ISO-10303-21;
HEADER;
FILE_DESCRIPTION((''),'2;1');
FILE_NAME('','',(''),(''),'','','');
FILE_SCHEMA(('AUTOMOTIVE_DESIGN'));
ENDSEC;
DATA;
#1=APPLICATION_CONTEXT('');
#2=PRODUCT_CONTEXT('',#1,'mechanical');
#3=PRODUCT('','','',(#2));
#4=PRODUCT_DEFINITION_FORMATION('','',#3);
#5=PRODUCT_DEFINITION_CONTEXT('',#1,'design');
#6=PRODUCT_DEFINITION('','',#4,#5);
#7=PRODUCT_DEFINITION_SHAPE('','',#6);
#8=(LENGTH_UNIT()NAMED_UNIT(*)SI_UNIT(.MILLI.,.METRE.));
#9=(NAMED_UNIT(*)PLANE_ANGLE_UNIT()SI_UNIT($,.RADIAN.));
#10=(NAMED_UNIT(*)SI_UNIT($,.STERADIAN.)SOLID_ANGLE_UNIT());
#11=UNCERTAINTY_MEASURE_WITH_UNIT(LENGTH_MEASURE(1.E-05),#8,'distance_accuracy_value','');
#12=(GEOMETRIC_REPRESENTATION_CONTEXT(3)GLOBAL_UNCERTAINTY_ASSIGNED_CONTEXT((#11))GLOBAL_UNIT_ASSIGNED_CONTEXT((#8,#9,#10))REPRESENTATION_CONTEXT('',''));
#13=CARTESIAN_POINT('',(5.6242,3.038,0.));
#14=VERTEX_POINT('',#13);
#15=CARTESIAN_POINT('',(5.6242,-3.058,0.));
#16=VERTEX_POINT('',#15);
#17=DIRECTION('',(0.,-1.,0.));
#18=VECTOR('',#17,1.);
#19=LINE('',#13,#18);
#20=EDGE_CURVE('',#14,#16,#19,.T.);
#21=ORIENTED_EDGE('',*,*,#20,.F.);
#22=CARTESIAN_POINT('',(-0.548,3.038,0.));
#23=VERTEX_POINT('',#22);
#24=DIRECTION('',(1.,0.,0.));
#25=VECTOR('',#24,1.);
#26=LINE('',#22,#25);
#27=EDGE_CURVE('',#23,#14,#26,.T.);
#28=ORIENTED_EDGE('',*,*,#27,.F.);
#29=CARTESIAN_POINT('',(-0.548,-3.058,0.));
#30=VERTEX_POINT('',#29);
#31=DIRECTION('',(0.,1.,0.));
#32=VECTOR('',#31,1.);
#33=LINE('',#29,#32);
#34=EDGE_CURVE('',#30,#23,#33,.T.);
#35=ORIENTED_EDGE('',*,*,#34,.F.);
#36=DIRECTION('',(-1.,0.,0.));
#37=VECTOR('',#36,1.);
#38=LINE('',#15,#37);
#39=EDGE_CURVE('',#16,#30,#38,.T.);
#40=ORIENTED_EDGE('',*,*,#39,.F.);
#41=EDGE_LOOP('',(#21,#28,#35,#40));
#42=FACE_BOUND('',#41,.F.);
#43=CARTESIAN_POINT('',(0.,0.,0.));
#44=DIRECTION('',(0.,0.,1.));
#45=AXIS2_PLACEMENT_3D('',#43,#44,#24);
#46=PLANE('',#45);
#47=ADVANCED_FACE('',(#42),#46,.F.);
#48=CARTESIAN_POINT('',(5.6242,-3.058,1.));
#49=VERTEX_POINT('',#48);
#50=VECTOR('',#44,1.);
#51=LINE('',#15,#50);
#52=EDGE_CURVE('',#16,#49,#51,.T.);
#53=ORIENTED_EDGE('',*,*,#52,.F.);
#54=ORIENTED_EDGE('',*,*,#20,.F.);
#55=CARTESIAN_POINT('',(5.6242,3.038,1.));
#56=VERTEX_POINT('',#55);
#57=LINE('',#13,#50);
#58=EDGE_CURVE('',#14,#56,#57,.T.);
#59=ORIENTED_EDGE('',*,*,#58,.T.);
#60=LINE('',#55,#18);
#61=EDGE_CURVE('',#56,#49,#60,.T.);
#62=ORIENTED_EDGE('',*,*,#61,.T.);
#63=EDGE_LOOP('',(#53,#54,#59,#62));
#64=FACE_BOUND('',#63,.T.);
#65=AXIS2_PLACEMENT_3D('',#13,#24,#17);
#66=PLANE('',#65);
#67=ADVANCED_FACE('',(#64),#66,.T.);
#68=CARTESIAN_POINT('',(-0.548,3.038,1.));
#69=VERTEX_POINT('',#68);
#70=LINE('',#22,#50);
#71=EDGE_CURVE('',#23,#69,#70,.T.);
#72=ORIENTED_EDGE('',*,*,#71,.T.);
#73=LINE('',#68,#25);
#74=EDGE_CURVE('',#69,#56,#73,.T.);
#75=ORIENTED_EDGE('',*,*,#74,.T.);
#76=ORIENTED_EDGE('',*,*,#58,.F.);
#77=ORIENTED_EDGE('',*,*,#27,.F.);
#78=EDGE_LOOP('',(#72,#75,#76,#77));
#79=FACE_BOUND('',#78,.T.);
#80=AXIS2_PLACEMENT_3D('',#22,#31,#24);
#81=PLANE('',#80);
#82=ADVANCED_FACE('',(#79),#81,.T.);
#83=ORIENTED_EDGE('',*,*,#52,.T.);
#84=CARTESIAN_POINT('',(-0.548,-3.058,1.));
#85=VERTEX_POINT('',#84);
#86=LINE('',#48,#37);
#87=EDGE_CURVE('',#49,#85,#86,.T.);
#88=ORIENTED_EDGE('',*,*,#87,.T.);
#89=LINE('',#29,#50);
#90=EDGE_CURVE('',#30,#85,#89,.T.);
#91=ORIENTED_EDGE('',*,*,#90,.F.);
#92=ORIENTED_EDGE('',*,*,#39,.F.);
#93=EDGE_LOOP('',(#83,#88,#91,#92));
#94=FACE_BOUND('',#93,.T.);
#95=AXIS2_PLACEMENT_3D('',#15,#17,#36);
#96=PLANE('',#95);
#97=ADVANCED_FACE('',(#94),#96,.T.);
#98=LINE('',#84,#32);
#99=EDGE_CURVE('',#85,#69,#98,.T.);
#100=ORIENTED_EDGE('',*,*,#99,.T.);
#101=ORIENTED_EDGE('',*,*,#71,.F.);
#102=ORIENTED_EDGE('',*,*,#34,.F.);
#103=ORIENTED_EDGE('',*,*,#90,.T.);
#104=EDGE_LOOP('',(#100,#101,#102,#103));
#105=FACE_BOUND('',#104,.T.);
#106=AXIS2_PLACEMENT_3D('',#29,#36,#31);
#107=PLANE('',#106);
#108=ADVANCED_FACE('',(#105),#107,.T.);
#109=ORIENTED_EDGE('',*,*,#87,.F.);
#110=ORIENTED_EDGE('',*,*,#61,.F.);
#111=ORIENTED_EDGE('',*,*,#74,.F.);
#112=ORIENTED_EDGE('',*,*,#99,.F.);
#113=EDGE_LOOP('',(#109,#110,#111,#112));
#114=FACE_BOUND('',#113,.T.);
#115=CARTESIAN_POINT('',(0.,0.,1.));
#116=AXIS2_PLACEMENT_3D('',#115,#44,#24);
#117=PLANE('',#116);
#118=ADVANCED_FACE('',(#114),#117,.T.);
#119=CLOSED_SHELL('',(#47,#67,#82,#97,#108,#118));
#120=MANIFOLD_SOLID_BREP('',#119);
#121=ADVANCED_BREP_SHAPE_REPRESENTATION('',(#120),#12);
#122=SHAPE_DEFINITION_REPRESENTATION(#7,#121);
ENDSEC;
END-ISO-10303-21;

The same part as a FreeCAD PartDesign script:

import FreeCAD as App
import Part
import Sketcher
from FreeCAD import Vector
Q = App.Units.Quantity


def add_polygon(sketch, points):
    """Adds a closed chain of lines whose ends are joined by coincident constraints."""
    first, n = sketch.GeometryCount, len(points)
    for a, b in zip(points, points[1:] + points[:1]):
        sketch.addGeometry(Part.LineSegment(App.Vector(*a, 0), App.Vector(*b, 0)), False)
    for i in range(n):
        sketch.addConstraint(Sketcher.Constraint("Coincident", first + i, 2, first + (i + 1) % n, 1))

doc = App.newDocument("Part")
body = doc.addObject("PartDesign::Body", "Body")

sketch1 = body.newObject("Sketcher::SketchObject", "Sketch")
sketch1.AttachmentSupport = (doc.getObject("XY_Plane"), [""])
sketch1.MapMode = "FlatFace"
add_polygon(sketch1, [(6, 3), (-1, 3), (-1, -3), (6, -3)])
sketch1.addConstraint([
    Sketcher.Constraint("Horizontal", 0),
    Sketcher.Constraint("Vertical", 1),
    Sketcher.Constraint("Horizontal", 2),
    Sketcher.Constraint("Vertical", 3),
    Sketcher.Constraint("DistanceY", 1, 2, 1, 1, Q("0.24 in")),
    Sketcher.Constraint("DistanceX", 0, 2, 0, 1, Q("0.243 in")),
    Sketcher.Constraint("DistanceY", -1, 1, 0, 2, Q("0.1196 in")),
    Sketcher.Constraint("DistanceX", 0, 2, -1, 1, 0.548),
])
pad1 = body.newObject("PartDesign::Pad", "Pad")
pad1.Profile = sketch1
pad1.Length = 1

doc.recompute()
